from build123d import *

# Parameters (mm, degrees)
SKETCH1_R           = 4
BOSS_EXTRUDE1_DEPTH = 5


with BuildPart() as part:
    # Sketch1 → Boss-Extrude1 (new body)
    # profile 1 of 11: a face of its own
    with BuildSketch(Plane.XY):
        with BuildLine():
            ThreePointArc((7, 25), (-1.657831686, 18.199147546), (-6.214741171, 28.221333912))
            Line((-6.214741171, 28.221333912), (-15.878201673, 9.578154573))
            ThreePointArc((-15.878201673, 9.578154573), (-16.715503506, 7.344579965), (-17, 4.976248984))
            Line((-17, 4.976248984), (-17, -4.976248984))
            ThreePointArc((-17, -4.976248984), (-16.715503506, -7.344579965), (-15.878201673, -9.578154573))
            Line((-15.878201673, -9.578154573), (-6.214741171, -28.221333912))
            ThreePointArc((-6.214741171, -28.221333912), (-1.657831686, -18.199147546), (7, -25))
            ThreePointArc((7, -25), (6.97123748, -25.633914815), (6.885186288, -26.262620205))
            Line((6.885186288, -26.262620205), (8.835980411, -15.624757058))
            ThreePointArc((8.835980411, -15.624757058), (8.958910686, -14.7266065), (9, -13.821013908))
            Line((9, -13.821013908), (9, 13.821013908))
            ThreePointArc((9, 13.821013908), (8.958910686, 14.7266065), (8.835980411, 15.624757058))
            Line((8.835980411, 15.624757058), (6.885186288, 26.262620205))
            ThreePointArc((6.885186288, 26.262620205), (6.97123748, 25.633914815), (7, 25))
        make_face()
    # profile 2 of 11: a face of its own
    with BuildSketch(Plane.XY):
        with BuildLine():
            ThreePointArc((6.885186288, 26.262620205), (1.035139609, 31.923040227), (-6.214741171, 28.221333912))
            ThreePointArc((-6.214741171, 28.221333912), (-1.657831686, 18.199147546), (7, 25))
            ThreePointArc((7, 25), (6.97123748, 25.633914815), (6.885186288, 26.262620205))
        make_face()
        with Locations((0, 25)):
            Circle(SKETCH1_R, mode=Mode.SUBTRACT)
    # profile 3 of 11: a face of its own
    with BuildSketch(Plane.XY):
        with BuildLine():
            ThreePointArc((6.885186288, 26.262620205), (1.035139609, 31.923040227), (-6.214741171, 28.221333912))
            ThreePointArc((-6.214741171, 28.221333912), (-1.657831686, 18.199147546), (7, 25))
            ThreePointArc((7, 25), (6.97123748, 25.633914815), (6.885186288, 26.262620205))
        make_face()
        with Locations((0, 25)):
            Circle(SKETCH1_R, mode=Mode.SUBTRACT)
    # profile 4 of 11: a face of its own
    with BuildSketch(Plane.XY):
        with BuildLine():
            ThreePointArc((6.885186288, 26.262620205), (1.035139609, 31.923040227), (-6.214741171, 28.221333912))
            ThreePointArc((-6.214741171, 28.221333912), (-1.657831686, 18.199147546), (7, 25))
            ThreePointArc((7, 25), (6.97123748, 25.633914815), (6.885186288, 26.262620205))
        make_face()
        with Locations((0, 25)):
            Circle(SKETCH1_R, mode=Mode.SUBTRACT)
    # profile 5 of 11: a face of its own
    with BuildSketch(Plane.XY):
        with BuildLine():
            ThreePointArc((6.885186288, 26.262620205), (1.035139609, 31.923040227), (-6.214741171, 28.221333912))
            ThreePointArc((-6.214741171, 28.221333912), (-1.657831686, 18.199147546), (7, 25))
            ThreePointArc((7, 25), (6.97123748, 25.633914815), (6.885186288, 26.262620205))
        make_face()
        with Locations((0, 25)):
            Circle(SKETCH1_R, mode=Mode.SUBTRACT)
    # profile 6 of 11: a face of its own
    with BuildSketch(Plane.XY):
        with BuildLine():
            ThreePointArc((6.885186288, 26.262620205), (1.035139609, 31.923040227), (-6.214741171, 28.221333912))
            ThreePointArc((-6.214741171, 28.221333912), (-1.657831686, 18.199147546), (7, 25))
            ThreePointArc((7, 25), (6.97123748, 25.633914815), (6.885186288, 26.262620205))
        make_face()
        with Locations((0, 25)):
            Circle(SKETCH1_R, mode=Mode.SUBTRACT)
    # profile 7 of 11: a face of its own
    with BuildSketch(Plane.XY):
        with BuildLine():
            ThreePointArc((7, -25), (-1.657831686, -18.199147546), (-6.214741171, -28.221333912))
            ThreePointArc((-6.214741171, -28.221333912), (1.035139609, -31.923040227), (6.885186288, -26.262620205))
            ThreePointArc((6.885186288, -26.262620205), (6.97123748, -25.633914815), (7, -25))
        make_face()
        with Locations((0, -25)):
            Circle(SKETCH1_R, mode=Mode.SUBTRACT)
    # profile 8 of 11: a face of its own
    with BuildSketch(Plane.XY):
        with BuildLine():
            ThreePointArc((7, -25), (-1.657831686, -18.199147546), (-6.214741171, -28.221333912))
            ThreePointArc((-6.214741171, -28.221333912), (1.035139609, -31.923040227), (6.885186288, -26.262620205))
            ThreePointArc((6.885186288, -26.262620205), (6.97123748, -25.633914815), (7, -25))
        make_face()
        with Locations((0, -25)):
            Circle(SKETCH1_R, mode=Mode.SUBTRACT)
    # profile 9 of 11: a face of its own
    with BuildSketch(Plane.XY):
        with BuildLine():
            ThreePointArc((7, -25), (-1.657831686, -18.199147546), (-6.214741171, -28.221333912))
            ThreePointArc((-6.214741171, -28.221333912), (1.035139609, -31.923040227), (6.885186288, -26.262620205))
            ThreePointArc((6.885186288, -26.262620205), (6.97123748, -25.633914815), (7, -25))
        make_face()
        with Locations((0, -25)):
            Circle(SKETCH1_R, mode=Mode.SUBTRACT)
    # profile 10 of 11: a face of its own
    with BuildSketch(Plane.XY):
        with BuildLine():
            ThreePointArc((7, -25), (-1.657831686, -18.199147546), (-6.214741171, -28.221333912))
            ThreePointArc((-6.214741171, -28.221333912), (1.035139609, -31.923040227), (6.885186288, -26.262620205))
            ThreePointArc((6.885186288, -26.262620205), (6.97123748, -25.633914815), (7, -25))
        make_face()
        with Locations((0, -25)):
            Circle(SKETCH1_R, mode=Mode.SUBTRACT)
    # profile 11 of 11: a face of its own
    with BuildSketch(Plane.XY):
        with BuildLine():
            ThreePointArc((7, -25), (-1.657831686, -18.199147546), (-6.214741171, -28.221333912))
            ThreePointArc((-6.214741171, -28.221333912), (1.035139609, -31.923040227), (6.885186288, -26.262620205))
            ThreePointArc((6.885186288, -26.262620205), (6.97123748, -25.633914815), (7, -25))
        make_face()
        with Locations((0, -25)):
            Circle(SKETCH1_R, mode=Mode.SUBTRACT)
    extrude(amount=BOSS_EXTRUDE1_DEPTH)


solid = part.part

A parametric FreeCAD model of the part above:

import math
import FreeCAD as App
import Part
import Sketcher

V = App.Vector

doc = App.newDocument("Part")
body = doc.addObject("PartDesign::Body", "Body")

sketch1 = doc.addObject("Sketcher::SketchObject", "Sketch")
body.addObject(sketch1)
sketch1.AttachmentSupport = (doc.XY_Plane, [""])
sketch1.MapMode = "FlatFace"
sketch1.addGeometry(Part.LineSegment(V(-6.2, 28.2, 0), V(-15.9, 9.6, 0)), False)
sketch1.addGeometry(Part.ArcOfCircle(Part.Circle(V(-7, 5, 0), V(0, 0, 1), 10), math.radians(153), math.radians(180)), False)
sketch1.addGeometry(Part.LineSegment(V(-17, 5, 0), V(-17, -5, 0)), False)
sketch1.addGeometry(Part.ArcOfCircle(Part.Circle(V(-7, -5, 0), V(0, 0, 1), 10), math.radians(180), math.radians(207)), False)
sketch1.addGeometry(Part.LineSegment(V(-15.9, -9.6, 0), V(-6.2, -28.2, 0)), False)
sketch1.addGeometry(Part.ArcOfCircle(Part.Circle(V(0, -25, 0), V(0, 0, 1), 7), math.radians(-153), math.radians(-10)), False)
sketch1.addGeometry(Part.LineSegment(V(6.9, -26.3, 0), V(8.8, -15.6, 0)), False)
sketch1.addGeometry(Part.ArcOfCircle(Part.Circle(V(-1, -13.8, 0), V(0, 0, 1), 10), math.radians(-10.39), math.radians(0)), False)
sketch1.addGeometry(Part.LineSegment(V(9, -13.8, 0), V(9, 13.8, 0)), False)
sketch1.addGeometry(Part.ArcOfCircle(Part.Circle(V(-1, 13.8, 0), V(0, 0, 1), 10), math.radians(0), math.radians(10.39)), False)
sketch1.addGeometry(Part.LineSegment(V(8.8, 15.6, 0), V(6.9, 26.3, 0)), False)
sketch1.addGeometry(Part.ArcOfCircle(Part.Circle(V(0, 25, 0), V(0, 0, 1), 7), math.radians(10), math.radians(153)), False)
sketch1.addGeometry(Part.Circle(V(0, 25, 0), V(0, 0, 1), 4), False)
sketch1.addGeometry(Part.Circle(V(0, -25, 0), V(0, 0, 1), 4), False)
sketch1.addConstraint(Sketcher.Constraint("Tangent", 0, 2, 1, 1))
sketch1.addConstraint(Sketcher.Constraint("Tangent", 1, 2, 2, 1))
sketch1.addConstraint(Sketcher.Constraint("Tangent", 2, 2, 3, 1))
sketch1.addConstraint(Sketcher.Constraint("Tangent", 3, 2, 4, 1))
sketch1.addConstraint(Sketcher.Constraint("Tangent", 4, 2, 5, 1))
sketch1.addConstraint(Sketcher.Constraint("Tangent", 5, 2, 6, 1))
sketch1.addConstraint(Sketcher.Constraint("Tangent", 6, 2, 7, 1))
sketch1.addConstraint(Sketcher.Constraint("Tangent", 7, 2, 8, 1))
sketch1.addConstraint(Sketcher.Constraint("Tangent", 8, 2, 9, 1))
sketch1.addConstraint(Sketcher.Constraint("Tangent", 9, 2, 10, 1))
sketch1.addConstraint(Sketcher.Constraint("Tangent", 10, 2, 11, 1))
sketch1.addConstraint(Sketcher.Constraint("Tangent", 11, 2, 0, 1))
sketch1.addConstraint(Sketcher.Constraint("Vertical", 2))
sketch1.addConstraint(Sketcher.Constraint("Vertical", 8))
sketch1.addConstraint(Sketcher.Constraint("Coincident", 12, 3, 11, 3))
sketch1.addConstraint(Sketcher.Constraint("Coincident", 13, 3, 5, 3))
sketch1.addConstraint(Sketcher.Constraint("Equal", 1, 3))
sketch1.addConstraint(Sketcher.Constraint("Equal", 3, 7))
sketch1.addConstraint(Sketcher.Constraint("Equal", 7, 9))
sketch1.addConstraint(Sketcher.Constraint("Equal", 5, 11))
sketch1.addConstraint(Sketcher.Constraint("Equal", 12, 13))
sketch1.addConstraint(Sketcher.Constraint("Symmetric", 5, 3, 11, 3, -1, 1))
sketch1.addConstraint(Sketcher.Constraint("Symmetric", 0, 2, 3, 2, -1))
sketch1.addConstraint(Sketcher.Constraint("Vertical", 6, 2, 9, 2))
sketch1.addConstraint(Sketcher.Constraint("Diameter", 12, 8.0))
sketch1.addConstraint(Sketcher.Constraint("Radius", 1, 10.0))
sketch1.addConstraint(Sketcher.Constraint("Radius", 5, 7.0))
sketch1.addConstraint(Sketcher.Constraint("DistanceX", 1, 3, -1, 1, 7.0))
sketch1.addConstraint(Sketcher.Constraint("DistanceY", 5, 3, -1, 1, 25.0))
sketch1.addConstraint(Sketcher.Constraint("DistanceX", 7, 3, -1, 1, 1.0))
sketch1.addConstraint(Sketcher.Constraint("DistanceX", 0, 2, -1, 1, 15.878202))
sketch1.addConstraint(Sketcher.Constraint("DistanceY", 8, 1, 8, 2, 27.642028))
pad1 = doc.addObject("PartDesign::Pad", "Pad")
body.addObject(pad1)
pad1.Profile = sketch1
pad1.Length = 5

doc.recompute()
